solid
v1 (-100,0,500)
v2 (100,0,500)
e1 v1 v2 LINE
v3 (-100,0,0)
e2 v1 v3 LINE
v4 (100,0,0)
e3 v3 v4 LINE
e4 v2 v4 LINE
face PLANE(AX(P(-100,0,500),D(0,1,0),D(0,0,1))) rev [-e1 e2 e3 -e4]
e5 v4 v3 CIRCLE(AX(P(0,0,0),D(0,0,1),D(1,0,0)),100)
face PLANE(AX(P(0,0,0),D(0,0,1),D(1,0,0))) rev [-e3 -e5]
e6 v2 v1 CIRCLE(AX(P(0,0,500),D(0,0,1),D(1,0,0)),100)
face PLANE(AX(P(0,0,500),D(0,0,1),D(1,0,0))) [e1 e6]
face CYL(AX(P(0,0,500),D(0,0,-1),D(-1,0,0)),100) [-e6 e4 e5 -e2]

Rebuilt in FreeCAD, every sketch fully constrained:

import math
import FreeCAD as App
import Part
import Sketcher

doc = App.newDocument("Part")
params = doc.addObject("Spreadsheet::Sheet", "Params")
for row, (alias, value) in enumerate([
    ("sketch1_radius", "100 mm"),
    ("pad1_length", "500 mm"),
], start=1):
    params.set(f"A{row}", alias)
    params.set(f"B{row}", "=" + value)
    params.setAlias(f"B{row}", alias)

body = doc.addObject("PartDesign::Body", "Body")

# Sketch on XY plane
sketch1 = body.newObject("Sketcher::SketchObject", "Sketch")
sketch1.AttachmentSupport = (doc.getObject("XY_Plane"), [""])
sketch1.MapMode = "FlatFace"
sketch1.addGeometry([
    Part.LineSegment(App.Vector(-100, 0, 0), App.Vector(100, 0, 0)),
    Part.ArcOfCircle(Part.Circle(App.Vector(0, 0, 0), App.Vector(0, 0, 1), 100), math.radians(0), math.radians(180)),
], False)
sketch1.addConstraint([
    Sketcher.Constraint("Coincident", 0, 1, 1, 2),
    Sketcher.Constraint("Coincident", 1, 1, 0, 2),
    Sketcher.Constraint("Horizontal", 0),
    Sketcher.Constraint("Coincident", 1, 3, -1, 1),
    Sketcher.Constraint("PointOnObject", 0, 1, -1),
    Sketcher.Constraint("Radius", 1, 100.0),
])
sketch1.setExpression("Constraints[5]", "Params.sketch1_radius")
pad1 = body.newObject("PartDesign::Pad", "Pad")
pad1.Profile = sketch1
pad1.setExpression("Length", "Params.pad1_length")

doc.recompute()
